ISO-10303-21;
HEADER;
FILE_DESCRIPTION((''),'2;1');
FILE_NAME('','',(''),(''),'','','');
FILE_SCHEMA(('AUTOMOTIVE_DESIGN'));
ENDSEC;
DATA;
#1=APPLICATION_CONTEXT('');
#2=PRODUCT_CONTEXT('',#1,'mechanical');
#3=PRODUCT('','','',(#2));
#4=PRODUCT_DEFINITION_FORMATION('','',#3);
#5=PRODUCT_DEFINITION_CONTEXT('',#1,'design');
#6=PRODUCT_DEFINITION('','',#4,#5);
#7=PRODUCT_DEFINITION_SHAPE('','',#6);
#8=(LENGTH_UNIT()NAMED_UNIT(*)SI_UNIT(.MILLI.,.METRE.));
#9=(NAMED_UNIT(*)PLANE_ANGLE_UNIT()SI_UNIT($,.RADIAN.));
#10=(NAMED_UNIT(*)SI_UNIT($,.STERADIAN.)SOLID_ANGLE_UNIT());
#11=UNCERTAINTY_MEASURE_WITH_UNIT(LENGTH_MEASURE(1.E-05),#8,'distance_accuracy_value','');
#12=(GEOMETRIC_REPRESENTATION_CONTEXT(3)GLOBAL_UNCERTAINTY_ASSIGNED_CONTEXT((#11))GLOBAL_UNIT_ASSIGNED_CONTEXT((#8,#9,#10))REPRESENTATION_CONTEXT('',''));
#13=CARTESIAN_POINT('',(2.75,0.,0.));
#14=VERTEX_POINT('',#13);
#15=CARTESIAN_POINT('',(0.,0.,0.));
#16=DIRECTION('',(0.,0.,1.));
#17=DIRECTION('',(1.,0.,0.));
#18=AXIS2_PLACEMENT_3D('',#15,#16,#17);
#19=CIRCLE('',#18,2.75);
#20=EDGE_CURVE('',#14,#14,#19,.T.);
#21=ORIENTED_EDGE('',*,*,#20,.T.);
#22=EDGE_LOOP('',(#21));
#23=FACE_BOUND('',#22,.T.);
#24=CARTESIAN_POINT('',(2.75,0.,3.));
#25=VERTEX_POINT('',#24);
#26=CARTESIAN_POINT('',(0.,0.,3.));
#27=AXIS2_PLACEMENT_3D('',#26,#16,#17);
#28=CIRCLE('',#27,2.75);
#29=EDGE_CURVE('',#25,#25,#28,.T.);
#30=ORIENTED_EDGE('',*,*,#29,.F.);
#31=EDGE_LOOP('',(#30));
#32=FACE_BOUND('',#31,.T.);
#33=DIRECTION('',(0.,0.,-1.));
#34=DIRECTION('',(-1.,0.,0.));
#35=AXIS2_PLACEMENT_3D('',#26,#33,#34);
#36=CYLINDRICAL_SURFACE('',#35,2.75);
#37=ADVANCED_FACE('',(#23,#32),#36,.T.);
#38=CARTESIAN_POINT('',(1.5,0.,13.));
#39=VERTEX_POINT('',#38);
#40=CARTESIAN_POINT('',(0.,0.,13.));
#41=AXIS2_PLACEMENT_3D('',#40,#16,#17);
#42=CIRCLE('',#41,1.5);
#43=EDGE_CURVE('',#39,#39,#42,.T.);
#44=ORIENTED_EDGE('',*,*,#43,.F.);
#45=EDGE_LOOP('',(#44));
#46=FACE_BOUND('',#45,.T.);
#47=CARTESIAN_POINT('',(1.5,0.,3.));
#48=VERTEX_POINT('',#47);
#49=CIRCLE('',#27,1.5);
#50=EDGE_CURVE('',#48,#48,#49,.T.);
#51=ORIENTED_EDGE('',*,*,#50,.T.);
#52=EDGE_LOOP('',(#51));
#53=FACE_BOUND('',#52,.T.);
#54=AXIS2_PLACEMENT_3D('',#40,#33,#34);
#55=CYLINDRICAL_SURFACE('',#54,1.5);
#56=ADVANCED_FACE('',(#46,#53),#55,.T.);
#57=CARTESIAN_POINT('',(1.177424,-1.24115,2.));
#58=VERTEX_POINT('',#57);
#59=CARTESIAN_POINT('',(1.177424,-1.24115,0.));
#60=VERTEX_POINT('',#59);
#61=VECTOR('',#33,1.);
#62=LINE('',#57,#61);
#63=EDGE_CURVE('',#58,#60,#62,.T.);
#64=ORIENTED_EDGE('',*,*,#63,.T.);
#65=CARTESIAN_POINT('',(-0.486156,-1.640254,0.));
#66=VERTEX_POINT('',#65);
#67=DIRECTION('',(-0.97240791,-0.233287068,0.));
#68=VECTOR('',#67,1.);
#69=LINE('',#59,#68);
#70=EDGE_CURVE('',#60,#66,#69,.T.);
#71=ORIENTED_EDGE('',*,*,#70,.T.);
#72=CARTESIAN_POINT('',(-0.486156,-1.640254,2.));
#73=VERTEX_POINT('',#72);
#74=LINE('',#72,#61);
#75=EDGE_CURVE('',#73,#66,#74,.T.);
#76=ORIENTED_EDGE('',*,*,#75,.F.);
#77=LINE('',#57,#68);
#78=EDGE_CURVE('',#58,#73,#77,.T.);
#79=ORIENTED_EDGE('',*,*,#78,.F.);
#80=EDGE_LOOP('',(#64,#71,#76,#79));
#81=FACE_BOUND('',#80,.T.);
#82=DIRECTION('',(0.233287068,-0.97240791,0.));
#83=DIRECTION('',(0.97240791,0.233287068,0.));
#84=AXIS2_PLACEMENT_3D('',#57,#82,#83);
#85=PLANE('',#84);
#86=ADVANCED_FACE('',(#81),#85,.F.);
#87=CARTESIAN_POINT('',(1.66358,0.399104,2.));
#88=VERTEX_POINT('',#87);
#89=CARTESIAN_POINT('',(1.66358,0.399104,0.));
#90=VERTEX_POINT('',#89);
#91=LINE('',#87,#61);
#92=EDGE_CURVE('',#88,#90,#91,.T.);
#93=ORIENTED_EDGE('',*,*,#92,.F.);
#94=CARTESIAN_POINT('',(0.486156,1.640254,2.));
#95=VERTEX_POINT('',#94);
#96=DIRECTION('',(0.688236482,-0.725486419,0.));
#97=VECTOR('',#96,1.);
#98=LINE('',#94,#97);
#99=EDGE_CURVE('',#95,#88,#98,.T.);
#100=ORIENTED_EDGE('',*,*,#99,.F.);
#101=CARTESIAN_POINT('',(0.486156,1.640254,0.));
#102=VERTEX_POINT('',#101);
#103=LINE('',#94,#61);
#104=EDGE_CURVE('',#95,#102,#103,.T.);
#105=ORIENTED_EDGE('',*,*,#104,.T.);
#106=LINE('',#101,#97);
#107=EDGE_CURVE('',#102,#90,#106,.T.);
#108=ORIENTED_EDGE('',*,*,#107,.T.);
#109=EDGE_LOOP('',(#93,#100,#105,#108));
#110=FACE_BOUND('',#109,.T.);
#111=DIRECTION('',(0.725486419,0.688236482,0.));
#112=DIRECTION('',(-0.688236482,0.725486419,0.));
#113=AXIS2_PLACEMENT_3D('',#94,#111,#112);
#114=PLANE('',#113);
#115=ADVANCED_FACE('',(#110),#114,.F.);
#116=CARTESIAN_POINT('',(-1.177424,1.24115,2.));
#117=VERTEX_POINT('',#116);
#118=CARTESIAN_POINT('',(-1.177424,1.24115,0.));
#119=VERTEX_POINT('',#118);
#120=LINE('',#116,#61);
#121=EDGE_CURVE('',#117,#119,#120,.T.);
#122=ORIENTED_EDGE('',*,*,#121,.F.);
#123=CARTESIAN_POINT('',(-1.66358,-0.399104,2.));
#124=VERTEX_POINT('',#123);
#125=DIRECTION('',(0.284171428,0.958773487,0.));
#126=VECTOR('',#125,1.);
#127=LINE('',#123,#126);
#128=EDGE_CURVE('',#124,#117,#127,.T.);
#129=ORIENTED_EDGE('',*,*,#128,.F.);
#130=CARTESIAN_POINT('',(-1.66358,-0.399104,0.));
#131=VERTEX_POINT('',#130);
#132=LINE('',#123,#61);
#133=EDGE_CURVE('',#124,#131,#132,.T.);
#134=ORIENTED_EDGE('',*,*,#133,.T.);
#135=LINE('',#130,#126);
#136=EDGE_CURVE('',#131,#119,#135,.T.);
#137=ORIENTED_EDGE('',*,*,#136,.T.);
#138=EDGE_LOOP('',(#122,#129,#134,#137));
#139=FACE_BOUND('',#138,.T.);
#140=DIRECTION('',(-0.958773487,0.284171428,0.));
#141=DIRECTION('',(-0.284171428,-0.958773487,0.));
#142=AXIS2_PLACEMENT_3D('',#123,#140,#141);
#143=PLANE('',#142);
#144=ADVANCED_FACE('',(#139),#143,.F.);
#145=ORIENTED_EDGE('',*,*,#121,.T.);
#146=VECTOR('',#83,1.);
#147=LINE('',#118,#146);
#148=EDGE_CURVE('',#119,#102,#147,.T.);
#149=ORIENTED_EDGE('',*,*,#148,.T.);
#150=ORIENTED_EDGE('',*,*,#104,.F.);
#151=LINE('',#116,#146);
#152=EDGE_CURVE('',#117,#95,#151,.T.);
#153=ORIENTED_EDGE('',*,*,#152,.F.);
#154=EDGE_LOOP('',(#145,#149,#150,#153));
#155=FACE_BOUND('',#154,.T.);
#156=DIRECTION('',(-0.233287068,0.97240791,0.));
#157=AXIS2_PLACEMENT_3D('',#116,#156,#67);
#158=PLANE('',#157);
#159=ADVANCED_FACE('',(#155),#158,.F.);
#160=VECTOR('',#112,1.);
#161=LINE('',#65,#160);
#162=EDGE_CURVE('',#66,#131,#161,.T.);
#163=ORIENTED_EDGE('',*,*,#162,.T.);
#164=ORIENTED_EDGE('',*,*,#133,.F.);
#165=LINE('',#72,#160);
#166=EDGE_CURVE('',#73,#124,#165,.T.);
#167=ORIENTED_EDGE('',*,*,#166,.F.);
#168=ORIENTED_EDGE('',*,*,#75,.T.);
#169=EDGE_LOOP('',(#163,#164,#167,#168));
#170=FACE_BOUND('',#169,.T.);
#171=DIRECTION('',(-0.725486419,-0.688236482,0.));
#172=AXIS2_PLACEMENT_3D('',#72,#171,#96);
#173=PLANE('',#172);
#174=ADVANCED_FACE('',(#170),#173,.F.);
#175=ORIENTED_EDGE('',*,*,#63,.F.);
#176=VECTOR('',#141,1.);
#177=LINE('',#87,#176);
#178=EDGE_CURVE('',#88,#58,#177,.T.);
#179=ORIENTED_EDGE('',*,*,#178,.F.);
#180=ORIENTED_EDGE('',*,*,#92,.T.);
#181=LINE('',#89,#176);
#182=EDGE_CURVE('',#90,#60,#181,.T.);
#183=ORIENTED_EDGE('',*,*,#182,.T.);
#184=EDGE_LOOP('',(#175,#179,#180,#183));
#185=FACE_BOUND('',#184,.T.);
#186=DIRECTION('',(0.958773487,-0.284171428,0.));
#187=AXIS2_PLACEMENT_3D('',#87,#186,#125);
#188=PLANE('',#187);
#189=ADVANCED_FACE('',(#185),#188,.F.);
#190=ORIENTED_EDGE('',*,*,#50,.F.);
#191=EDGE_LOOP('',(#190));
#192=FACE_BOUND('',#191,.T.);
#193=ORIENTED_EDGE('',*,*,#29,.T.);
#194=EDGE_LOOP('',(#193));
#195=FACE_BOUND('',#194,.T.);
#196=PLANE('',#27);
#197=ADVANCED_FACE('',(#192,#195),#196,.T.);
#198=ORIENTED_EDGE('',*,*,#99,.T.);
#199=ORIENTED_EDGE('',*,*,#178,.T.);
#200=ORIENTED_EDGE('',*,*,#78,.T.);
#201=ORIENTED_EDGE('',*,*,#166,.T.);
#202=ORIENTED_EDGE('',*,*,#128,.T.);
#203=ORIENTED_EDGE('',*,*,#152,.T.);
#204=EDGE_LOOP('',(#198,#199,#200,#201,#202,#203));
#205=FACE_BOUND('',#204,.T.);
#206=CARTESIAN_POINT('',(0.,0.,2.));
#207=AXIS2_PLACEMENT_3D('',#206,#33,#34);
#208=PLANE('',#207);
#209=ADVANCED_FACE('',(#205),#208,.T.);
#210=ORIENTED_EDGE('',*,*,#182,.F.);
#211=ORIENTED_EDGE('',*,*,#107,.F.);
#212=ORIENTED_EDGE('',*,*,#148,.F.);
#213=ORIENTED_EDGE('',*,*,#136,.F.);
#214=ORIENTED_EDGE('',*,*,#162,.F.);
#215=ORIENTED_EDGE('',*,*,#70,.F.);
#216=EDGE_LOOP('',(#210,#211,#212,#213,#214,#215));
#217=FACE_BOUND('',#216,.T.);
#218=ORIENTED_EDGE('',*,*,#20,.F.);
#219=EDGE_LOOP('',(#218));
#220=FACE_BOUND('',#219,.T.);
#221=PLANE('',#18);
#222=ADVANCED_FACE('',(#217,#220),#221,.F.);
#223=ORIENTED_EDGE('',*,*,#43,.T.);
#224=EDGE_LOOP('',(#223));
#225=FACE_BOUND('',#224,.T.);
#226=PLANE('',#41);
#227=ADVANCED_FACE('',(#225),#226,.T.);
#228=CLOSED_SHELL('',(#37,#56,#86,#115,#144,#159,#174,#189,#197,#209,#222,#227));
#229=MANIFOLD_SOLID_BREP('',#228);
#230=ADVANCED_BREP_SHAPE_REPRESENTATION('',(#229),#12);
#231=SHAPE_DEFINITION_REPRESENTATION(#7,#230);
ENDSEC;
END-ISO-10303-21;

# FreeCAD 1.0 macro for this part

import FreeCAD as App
import Part
import Sketcher

V = App.Vector

doc = App.newDocument("Part")
body = doc.addObject("PartDesign::Body", "Body")

# Sketch on XY plane
sketch1 = body.newObject("Sketcher::SketchObject", "Sketch")
sketch1.AttachmentSupport = (doc.getObject("XY_Plane"), [""])
sketch1.MapMode = "FlatFace"
sketch1.addGeometry(Part.Circle(V(0, 0, 0), V(0, 0, 1), 2.75), False)
sketch1.addConstraint(Sketcher.Constraint("Coincident", 0, 3, -1, 1))
sketch1.addConstraint(Sketcher.Constraint("Diameter", 0, 5.5))
pad1 = body.newObject("PartDesign::Pad", "Pad")
pad1.Profile = sketch1
pad1.Length = 3

# Sketch on XY plane
sketch2 = body.newObject("Sketcher::SketchObject", "Sketch001")
sketch2.AttachmentSupport = (doc.getObject("XY_Plane"), [""])
sketch2.MapMode = "FlatFace"
sketch2.AttachmentOffset = App.Placement(V(0, 0, 3), App.Rotation())
sketch2.addGeometry(Part.Circle(V(0, 0, 0), V(0, 0, 1), 1.5), False)
sketch2.addConstraint(Sketcher.Constraint("Coincident", 0, 3, -1, 1))
sketch2.addConstraint(Sketcher.Constraint("Diameter", 0, 3.0))
pad2 = body.newObject("PartDesign::Pad", "Pad001")
pad2.Profile = sketch2
pad2.Length = 10

# Sketch on XY plane
sketch3 = body.newObject("Sketcher::SketchObject", "Sketch002")
sketch3.AttachmentSupport = (doc.getObject("XY_Plane"), [""])
sketch3.MapMode = "FlatFace"
sketch3.addGeometry(Part.LineSegment(V(-1.66358, -0.399104, 0), V(-1.177424, 1.24115, 0)), False)
sketch3.addGeometry(Part.LineSegment(V(-1.177424, 1.24115, 0), V(0.486156, 1.640254, 0)), False)
sketch3.addGeometry(Part.LineSegment(V(0.486156, 1.640254, 0), V(1.66358, 0.399104, 0)), False)
sketch3.addGeometry(Part.LineSegment(V(1.66358, 0.399104, 0), V(1.177424, -1.24115, 0)), False)
sketch3.addGeometry(Part.LineSegment(V(1.177424, -1.24115, 0), V(-0.486156, -1.640254, 0)), False)
sketch3.addGeometry(Part.LineSegment(V(-0.486156, -1.640254, 0), V(-1.66358, -0.399104, 0)), False)
sketch3.addConstraint(Sketcher.Constraint("Coincident", 0, 2, 1, 1))
sketch3.addConstraint(Sketcher.Constraint("Coincident", 1, 2, 2, 1))
sketch3.addConstraint(Sketcher.Constraint("Coincident", 2, 2, 3, 1))
sketch3.addConstraint(Sketcher.Constraint("Coincident", 3, 2, 4, 1))
sketch3.addConstraint(Sketcher.Constraint("Coincident", 4, 2, 5, 1))
sketch3.addConstraint(Sketcher.Constraint("Coincident", 5, 2, 0, 1))
sketch3.addConstraint(Sketcher.Constraint("Symmetric", 0, 2, 3, 2, -1, 1))
sketch3.addConstraint(Sketcher.Constraint("Symmetric", 1, 2, 4, 2, -1, 1))
sketch3.addConstraint(Sketcher.Constraint("Symmetric", 2, 2, 5, 2, -1, 1))
sketch3.addConstraint(Sketcher.Constraint("Equal", 0, 1))
sketch3.addConstraint(Sketcher.Constraint("Equal", 1, 2))
sketch3.addConstraint(Sketcher.Constraint("DistanceY", 3, 2, 0, 2, 2.482301))
sketch3.addConstraint(Sketcher.Constraint("DistanceX", -1, 1, 2, 2, 1.66358))
sketch3.addConstraint(Sketcher.Constraint("DistanceX", 0, 2, 1, 2, 1.66358))
sketch3.addConstraint(Sketcher.Constraint("DistanceY", 2, 2, 1, 2, 1.24115))
pocket1 = body.newObject("PartDesign::Pocket", "Pocket")
pocket1.Profile = sketch3
pocket1.Length = 2
pocket1.Reversed = True

doc.recompute()
